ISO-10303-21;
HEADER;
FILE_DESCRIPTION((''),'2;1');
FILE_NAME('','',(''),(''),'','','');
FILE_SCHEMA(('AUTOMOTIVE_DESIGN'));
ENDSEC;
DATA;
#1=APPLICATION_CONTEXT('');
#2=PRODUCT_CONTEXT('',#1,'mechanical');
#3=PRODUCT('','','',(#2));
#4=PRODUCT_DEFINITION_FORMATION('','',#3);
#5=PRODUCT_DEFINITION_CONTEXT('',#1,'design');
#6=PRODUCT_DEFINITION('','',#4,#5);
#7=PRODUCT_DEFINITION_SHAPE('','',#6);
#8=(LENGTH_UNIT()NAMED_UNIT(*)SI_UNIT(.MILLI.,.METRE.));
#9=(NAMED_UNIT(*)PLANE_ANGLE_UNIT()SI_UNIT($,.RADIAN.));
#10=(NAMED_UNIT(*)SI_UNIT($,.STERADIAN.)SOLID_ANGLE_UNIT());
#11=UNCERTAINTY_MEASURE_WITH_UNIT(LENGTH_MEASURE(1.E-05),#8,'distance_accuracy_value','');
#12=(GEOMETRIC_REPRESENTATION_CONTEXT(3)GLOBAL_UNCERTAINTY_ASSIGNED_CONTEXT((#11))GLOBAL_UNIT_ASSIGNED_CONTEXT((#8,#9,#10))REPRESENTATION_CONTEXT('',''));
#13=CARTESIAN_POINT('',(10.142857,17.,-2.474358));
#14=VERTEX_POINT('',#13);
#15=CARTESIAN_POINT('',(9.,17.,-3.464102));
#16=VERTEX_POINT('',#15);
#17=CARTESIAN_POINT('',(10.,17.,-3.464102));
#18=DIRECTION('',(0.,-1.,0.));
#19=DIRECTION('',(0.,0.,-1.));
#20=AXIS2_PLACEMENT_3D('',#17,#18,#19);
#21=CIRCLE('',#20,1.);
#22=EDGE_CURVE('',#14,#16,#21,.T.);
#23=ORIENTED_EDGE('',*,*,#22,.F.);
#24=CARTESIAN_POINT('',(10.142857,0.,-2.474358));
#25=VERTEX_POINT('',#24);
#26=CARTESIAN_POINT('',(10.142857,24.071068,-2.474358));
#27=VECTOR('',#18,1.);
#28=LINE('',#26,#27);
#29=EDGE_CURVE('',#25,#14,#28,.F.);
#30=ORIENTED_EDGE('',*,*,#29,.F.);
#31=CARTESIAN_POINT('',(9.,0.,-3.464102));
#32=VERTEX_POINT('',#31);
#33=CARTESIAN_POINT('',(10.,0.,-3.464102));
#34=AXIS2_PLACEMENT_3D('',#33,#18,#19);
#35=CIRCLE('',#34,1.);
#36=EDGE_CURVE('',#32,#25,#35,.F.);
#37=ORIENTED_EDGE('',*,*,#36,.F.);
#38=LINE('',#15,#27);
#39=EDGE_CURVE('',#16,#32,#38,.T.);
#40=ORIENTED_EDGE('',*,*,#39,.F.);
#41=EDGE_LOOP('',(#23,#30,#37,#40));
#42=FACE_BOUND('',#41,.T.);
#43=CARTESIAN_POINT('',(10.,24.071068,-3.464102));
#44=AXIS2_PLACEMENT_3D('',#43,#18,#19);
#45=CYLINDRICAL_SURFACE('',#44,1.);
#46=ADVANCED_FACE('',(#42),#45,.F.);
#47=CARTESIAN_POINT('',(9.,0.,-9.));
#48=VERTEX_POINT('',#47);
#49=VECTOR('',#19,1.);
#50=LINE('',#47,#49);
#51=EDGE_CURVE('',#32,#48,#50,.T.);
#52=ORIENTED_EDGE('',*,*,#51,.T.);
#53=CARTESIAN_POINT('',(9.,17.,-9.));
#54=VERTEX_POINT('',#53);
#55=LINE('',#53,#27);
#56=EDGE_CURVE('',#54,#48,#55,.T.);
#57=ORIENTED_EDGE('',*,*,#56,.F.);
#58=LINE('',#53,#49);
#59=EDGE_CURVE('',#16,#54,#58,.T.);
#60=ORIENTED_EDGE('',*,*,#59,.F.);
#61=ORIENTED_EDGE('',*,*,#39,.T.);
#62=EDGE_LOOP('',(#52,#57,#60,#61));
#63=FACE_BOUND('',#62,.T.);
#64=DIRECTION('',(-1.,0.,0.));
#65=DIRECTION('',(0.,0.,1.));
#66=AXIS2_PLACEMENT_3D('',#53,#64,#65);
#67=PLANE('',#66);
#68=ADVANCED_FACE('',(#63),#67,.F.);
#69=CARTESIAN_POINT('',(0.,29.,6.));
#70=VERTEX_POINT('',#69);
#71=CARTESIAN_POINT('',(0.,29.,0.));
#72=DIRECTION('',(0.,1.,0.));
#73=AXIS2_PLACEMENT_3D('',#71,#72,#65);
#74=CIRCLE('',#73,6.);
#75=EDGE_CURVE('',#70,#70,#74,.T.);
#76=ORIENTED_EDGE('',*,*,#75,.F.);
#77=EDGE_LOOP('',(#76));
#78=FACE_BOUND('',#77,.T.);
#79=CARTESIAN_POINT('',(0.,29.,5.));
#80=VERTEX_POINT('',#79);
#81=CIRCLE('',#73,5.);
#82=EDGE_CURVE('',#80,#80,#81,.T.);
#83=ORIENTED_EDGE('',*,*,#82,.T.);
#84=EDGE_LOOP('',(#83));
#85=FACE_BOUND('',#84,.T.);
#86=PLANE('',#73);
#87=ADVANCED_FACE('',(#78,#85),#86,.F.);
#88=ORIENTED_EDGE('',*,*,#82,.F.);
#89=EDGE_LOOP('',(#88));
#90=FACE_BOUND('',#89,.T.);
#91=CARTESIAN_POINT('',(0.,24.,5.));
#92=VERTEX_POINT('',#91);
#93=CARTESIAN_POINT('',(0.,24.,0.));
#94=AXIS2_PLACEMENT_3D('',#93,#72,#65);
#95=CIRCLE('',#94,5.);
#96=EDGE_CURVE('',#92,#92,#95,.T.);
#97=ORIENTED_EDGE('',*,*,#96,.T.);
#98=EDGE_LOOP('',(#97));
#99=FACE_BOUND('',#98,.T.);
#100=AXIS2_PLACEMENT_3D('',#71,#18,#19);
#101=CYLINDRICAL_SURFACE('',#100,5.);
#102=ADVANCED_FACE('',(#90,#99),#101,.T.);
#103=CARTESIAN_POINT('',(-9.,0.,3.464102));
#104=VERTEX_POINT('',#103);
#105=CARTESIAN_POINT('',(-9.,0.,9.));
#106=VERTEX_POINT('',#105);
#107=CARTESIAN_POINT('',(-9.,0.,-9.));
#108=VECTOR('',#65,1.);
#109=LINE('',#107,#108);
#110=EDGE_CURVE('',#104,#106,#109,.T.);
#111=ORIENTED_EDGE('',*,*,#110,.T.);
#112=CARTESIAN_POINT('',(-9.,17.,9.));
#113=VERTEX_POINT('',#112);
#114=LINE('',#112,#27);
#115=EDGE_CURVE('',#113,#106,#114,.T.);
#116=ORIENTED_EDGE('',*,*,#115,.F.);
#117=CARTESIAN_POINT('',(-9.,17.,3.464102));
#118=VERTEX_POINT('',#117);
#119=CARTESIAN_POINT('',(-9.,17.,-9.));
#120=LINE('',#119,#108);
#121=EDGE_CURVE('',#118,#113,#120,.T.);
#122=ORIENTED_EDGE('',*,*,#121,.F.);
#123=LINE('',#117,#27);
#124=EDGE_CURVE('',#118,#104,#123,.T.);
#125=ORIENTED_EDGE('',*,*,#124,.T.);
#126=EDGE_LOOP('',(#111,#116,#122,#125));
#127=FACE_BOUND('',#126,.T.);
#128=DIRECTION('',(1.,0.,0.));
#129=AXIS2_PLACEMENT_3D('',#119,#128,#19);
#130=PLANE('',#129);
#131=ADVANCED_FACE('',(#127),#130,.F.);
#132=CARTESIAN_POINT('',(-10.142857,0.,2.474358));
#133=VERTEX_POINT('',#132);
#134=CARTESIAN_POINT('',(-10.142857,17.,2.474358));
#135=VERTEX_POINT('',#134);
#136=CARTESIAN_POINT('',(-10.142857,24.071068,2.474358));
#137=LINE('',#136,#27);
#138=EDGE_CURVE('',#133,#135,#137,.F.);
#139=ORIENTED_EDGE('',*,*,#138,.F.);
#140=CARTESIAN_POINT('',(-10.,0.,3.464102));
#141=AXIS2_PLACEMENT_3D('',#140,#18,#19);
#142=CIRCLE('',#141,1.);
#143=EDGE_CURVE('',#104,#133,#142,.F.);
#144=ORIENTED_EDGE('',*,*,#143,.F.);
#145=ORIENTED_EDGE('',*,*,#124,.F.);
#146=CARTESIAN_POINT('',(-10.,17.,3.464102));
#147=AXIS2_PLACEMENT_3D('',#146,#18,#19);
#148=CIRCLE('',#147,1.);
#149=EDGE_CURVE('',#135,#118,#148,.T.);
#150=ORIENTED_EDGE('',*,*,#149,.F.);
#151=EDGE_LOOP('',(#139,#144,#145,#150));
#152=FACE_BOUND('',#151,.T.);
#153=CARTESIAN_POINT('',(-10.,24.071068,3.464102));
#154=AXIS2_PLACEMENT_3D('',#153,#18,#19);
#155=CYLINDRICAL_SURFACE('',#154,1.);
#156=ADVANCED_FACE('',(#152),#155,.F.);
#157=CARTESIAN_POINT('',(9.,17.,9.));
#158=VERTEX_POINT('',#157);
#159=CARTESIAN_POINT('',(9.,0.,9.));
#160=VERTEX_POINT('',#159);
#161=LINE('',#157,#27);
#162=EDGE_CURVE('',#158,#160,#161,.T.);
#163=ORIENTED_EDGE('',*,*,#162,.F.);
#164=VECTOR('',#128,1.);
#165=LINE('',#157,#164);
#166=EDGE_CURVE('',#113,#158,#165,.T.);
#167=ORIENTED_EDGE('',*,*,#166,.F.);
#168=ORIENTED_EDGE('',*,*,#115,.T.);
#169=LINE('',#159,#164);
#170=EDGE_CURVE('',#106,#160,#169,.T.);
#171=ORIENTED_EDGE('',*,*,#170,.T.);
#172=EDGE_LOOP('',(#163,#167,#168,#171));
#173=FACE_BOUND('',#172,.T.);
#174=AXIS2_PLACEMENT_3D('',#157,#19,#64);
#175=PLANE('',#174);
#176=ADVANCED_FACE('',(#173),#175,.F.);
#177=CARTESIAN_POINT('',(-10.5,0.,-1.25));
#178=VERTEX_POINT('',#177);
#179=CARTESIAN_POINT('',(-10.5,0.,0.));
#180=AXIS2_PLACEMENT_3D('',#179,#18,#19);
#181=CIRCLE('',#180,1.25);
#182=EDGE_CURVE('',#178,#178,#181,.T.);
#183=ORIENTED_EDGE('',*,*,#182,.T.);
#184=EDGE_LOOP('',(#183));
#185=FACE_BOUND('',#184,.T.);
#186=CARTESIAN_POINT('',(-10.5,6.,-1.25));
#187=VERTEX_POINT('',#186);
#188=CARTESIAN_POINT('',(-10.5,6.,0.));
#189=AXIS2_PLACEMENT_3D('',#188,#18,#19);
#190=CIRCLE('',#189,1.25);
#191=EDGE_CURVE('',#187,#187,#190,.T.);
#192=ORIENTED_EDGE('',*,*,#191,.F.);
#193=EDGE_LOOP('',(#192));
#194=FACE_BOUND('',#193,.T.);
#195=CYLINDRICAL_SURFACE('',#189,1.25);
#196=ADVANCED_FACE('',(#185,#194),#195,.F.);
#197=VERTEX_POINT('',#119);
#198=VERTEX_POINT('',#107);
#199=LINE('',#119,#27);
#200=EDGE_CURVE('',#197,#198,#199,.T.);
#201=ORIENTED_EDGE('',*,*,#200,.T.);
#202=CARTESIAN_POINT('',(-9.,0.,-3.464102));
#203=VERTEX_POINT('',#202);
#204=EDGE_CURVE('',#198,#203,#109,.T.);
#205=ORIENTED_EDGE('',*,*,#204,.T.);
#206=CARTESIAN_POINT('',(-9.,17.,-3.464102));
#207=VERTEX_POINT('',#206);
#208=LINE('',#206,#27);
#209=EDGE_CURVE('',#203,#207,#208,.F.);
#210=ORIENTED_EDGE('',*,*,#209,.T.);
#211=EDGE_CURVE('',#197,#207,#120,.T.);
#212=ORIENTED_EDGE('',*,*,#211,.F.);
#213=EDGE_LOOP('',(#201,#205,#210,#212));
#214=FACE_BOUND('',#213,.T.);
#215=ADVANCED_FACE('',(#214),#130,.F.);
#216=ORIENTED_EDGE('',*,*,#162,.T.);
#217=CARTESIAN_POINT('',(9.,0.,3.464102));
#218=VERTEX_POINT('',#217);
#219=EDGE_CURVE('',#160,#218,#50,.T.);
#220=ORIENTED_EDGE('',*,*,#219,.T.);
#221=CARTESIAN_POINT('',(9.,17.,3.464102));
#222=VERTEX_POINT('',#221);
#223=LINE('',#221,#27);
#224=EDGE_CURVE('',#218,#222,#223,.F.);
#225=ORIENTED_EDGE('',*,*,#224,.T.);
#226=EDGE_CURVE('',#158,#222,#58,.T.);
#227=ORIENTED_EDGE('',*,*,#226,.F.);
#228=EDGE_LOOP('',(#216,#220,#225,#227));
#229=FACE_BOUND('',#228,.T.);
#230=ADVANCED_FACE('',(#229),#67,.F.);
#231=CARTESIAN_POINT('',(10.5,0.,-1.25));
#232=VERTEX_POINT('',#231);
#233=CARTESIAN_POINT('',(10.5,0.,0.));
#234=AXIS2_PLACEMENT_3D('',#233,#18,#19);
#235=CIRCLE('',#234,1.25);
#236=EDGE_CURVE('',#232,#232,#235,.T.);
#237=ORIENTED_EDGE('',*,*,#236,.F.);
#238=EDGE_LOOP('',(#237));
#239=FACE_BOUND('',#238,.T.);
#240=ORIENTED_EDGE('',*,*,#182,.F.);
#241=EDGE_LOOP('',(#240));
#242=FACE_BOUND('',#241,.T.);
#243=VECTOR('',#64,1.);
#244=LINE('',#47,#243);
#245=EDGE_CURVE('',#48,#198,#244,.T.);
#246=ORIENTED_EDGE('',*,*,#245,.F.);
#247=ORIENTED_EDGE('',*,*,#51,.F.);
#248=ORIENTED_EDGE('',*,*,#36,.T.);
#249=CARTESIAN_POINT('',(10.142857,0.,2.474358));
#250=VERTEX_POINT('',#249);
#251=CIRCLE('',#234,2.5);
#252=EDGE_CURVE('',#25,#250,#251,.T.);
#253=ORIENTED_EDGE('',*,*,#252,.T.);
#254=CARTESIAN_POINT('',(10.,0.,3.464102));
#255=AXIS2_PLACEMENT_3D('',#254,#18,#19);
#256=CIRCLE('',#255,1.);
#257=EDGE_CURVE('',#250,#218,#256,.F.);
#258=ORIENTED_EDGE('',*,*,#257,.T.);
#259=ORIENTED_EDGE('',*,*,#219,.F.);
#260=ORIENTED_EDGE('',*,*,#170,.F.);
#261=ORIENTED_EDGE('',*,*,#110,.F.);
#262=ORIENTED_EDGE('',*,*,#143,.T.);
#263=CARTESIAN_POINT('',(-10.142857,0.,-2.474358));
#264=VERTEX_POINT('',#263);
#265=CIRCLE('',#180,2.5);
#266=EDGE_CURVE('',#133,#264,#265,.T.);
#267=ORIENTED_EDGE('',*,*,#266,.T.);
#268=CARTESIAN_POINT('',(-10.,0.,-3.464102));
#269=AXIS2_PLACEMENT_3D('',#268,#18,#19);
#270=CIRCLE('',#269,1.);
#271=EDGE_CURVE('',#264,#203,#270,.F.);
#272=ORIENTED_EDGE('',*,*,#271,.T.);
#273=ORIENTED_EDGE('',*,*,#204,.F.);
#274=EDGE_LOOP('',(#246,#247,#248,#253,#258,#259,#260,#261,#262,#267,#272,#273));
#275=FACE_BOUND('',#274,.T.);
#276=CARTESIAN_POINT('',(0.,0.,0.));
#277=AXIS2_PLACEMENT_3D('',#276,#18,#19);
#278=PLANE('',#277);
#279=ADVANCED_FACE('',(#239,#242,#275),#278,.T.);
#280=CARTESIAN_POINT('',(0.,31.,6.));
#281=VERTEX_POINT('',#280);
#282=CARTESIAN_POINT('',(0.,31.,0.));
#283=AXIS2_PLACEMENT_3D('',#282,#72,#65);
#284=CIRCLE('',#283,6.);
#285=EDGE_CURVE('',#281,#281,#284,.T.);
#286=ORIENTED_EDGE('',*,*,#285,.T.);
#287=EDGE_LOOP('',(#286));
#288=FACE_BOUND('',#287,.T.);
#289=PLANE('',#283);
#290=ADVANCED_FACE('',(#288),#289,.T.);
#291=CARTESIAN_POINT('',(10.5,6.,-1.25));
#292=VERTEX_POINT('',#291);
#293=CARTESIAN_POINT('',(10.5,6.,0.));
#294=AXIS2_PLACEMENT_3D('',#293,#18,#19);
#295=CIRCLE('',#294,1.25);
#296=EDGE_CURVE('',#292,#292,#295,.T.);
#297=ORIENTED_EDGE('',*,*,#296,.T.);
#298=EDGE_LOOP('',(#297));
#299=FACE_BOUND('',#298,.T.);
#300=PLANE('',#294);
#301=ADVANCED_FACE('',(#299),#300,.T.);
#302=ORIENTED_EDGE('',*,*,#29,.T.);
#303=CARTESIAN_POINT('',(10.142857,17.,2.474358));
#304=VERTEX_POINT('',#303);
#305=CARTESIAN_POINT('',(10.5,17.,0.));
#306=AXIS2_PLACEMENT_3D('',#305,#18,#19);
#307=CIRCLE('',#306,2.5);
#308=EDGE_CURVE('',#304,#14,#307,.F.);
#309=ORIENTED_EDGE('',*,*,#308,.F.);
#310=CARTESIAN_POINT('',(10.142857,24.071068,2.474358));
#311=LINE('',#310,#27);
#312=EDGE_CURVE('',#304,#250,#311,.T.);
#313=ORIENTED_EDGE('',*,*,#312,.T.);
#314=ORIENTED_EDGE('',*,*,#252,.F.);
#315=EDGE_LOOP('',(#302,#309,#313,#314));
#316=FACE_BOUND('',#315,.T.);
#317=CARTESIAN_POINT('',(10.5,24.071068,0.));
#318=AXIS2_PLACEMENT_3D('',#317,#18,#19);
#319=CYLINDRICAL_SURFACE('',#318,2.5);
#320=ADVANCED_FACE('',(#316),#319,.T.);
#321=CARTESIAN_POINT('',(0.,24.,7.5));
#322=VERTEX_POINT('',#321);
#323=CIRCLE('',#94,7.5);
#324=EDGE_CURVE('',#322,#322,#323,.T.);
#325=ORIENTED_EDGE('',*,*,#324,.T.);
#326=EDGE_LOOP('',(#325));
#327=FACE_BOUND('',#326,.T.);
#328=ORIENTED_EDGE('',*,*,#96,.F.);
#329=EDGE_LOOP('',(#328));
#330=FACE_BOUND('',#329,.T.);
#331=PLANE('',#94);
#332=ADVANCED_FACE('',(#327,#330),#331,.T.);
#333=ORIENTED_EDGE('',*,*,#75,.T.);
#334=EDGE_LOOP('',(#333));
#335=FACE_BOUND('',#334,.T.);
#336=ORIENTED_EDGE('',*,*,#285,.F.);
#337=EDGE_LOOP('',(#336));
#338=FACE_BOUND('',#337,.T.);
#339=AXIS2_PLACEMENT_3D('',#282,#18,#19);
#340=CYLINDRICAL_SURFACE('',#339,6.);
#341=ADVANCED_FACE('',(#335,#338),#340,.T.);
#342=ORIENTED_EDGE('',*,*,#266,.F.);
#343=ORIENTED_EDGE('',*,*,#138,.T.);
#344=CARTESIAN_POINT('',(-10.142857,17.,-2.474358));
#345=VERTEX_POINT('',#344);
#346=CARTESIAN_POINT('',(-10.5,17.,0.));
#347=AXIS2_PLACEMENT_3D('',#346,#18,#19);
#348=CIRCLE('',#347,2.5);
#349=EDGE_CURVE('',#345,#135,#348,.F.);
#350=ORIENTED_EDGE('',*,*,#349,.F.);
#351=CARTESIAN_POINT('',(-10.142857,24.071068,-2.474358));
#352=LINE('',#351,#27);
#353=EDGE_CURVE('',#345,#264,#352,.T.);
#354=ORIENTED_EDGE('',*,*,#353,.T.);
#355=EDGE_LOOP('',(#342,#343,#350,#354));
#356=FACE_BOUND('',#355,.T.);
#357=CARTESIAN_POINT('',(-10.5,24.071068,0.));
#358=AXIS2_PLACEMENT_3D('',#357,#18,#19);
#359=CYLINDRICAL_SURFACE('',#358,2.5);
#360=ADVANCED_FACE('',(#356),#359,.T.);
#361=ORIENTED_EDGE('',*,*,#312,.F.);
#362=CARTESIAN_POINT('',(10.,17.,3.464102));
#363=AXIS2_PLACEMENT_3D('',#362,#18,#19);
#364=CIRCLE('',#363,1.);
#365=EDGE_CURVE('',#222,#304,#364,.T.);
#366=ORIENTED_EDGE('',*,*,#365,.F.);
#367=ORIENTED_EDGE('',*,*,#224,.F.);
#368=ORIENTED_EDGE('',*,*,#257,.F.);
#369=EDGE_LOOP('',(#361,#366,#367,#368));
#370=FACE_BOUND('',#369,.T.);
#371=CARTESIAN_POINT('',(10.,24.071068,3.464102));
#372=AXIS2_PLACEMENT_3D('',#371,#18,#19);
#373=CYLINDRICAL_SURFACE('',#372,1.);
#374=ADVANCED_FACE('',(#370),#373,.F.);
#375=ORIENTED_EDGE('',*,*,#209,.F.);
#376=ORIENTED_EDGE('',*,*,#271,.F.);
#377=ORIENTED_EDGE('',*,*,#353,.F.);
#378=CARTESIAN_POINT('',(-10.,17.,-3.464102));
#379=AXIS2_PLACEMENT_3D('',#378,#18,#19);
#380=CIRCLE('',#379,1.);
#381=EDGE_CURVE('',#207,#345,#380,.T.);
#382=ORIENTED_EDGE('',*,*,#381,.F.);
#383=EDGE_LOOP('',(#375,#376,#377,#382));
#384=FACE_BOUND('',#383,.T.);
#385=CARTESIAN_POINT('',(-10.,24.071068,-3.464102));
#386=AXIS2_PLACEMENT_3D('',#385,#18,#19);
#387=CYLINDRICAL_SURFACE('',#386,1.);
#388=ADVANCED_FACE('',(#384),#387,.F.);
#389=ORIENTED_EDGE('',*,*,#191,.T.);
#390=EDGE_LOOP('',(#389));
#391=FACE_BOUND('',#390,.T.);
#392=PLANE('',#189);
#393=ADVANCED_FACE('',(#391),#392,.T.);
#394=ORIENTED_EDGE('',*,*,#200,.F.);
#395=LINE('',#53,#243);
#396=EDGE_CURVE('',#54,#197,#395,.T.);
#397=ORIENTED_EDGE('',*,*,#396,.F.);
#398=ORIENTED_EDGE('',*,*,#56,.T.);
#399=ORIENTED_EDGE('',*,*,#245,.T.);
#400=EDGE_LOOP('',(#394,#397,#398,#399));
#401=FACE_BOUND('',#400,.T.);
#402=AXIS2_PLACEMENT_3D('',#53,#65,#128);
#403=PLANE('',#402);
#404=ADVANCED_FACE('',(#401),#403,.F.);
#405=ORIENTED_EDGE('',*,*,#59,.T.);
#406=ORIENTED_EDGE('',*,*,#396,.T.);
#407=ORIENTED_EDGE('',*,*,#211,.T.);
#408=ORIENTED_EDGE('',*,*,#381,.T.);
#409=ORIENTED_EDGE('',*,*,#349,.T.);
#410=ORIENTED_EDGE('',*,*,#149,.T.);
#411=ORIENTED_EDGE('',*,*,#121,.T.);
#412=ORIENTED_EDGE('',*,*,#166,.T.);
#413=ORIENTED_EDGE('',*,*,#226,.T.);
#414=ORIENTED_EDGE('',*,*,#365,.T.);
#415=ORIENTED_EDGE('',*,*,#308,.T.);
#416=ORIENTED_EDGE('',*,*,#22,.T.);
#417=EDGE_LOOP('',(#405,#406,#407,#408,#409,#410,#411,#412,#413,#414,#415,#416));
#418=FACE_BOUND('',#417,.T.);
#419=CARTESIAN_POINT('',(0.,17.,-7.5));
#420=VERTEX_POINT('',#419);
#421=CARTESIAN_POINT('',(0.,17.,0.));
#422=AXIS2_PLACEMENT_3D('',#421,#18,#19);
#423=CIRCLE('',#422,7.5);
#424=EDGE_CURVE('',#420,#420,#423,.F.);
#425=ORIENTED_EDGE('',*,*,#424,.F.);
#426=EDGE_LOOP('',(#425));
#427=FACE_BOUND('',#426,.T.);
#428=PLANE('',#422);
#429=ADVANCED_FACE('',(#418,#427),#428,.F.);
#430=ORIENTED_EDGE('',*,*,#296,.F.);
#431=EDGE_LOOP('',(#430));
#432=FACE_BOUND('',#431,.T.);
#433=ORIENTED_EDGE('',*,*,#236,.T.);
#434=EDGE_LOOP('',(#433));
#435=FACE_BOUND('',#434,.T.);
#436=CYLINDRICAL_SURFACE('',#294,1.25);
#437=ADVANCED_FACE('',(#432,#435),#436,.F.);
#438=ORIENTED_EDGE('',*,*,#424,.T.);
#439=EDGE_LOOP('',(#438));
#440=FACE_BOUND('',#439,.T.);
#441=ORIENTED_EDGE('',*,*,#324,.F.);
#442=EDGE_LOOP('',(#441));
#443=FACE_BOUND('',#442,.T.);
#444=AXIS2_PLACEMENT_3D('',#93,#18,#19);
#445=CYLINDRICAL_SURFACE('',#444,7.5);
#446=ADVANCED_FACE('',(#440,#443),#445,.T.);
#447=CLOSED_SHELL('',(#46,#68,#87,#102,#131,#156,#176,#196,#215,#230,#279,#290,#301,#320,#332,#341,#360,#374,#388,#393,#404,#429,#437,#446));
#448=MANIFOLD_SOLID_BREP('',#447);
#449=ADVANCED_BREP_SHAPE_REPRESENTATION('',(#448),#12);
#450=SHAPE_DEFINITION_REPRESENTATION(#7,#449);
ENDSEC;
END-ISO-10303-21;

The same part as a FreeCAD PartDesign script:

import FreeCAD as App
import Part
import Sketcher

V = App.Vector
Q = App.Units.Quantity


def edges_at(feature, points):
    """Names of the edges that pass closest to the given points."""
    edges = feature.Shape.Edges
    near = lambda p: min(range(len(edges)), key=lambda i: edges[i].distToShape(Part.Vertex(*p))[0])
    return sorted({f"Edge{near(p) + 1}" for p in points})


def add_polygon(sketch, points):
    """Adds a closed chain of lines whose ends are joined by coincident constraints."""
    first, n = sketch.GeometryCount, len(points)
    for a, b in zip(points, points[1:] + points[:1]):
        sketch.addGeometry(Part.LineSegment(App.Vector(*a, 0), App.Vector(*b, 0)), False)
    for i in range(n):
        sketch.addConstraint(Sketcher.Constraint("Coincident", first + i, 2, first + (i + 1) % n, 1))

doc = App.newDocument("Part")
body = doc.addObject("PartDesign::Body", "Body")

# Sketch on XZ plane
sketch1 = doc.addObject("Sketcher::SketchObject", "Sketch")
body.addObject(sketch1)
sketch1.AttachmentSupport = (doc.XZ_Plane, [""])
sketch1.MapMode = "FlatFace"
add_polygon(sketch1, [(-9, -9), (-9, 9), (9, 9), (9, -9)])  # lines 0-3
sketch1.addConstraint([
    Sketcher.Constraint("Vertical", 0),
    Sketcher.Constraint("Horizontal", 1),
    Sketcher.Constraint("Vertical", 2),
    Sketcher.Constraint("Horizontal", 3),
    Sketcher.Constraint("Symmetric", 0, 2, 2, 2, -1, 1),
    Sketcher.Constraint("Equal", 3, 0),
    Sketcher.Constraint("DistanceX", 1, 1, 1, 2, Q("18 mm")),
])
pad1 = doc.addObject("PartDesign::Pad", "Pad")
body.addObject(pad1)
pad1.Profile = sketch1
pad1.Length = 17
pad1.Reversed = True

# Sketch on XZ plane
sketch2 = doc.addObject("Sketcher::SketchObject", "Sketch001")
body.addObject(sketch2)
sketch2.AttachmentSupport = (doc.XZ_Plane, [""])
sketch2.MapMode = "FlatFace"
sketch2.AttachmentOffset = App.Placement(V(0, 0, -17), App.Rotation())
sketch2.addGeometry(Part.Circle(V(0, 0, 0), V(0, 0, 1), 8), False)
sketch2.addConstraint([
    Sketcher.Constraint("Coincident", 0, 3, -1, 1),
    Sketcher.Constraint("Diameter", 0, Q("15 mm")),
])
pad2 = doc.addObject("PartDesign::Pad", "Pad001")
body.addObject(pad2)
pad2.Profile = sketch2
pad2.Length = 7
pad2.Reversed = True

# Sketch on XZ plane
sketch3 = doc.addObject("Sketcher::SketchObject", "Sketch002")
body.addObject(sketch3)
sketch3.AttachmentSupport = (doc.XZ_Plane, [""])
sketch3.MapMode = "FlatFace"
sketch3.AttachmentOffset = App.Placement(V(0, 0, -24), App.Rotation())
sketch3.addGeometry(Part.Circle(V(0, 0, 0), V(0, 0, 1), 5), False)
sketch3.addConstraint([
    Sketcher.Constraint("Coincident", 0, 3, -1, 1),
    Sketcher.Constraint("Diameter", 0, Q("10 mm")),
])
pad3 = doc.addObject("PartDesign::Pad", "Pad002")
body.addObject(pad3)
pad3.Profile = sketch3
pad3.Length = 5
pad3.Reversed = True

# Sketch on XZ plane
sketch4 = doc.addObject("Sketcher::SketchObject", "Sketch003")
body.addObject(sketch4)
sketch4.AttachmentSupport = (doc.XZ_Plane, [""])
sketch4.MapMode = "FlatFace"
sketch4.AttachmentOffset = App.Placement(V(0, 0, -29), App.Rotation())
sketch4.addGeometry(Part.Circle(V(0, 0, 0), V(0, 0, 1), 6), False)
sketch4.addConstraint([
    Sketcher.Constraint("Coincident", 0, 3, -1, 1),
    Sketcher.Constraint("Diameter", 0, Q("12 mm")),
])
pad4 = doc.addObject("PartDesign::Pad", "Pad003")
body.addObject(pad4)
pad4.Profile = sketch4
pad4.Length = 2
pad4.Reversed = True

# Sketch on XZ plane
sketch5 = doc.addObject("Sketcher::SketchObject", "Sketch004")
body.addObject(sketch5)
sketch5.AttachmentSupport = (doc.XZ_Plane, [""])
sketch5.MapMode = "FlatFace"
sketch5.addGeometry([
    Part.Circle(V(-10.5, 0, 0), V(0, 0, 1), 2.5),
    Part.Circle(V(10.5, 0, 0), V(0, 0, 1), 2.5),
], False)
sketch5.addConstraint([
    Sketcher.Constraint("Equal", 0, 1),
    Sketcher.Constraint("Symmetric", 0, 3, 1, 3, -1, 1),
    Sketcher.Constraint("PointOnObject", 0, 3, -1),
    Sketcher.Constraint("Diameter", 0, Q("5 mm")),
    Sketcher.Constraint("DistanceX", 0, 3, 1, 3, Q("21 mm")),
])
pad5 = doc.addObject("PartDesign::Pad", "Pad004")
body.addObject(pad5)
pad5.Profile = sketch5
pad5.Length = 17
pad5.Reversed = True
doc.recompute()

fillet = doc.addObject("PartDesign::Fillet", "Fillet")
body.addObject(fillet)
fillet.Base = (pad5, edges_at(pad5, [
    (-9, 8.5, 2),
    (-9, 8.5, -2),
    (9, 8.5, -2),
    (9, 8.5, 2),
]))
fillet.Radius = 1

# Sketch on XZ plane
sketch6 = doc.addObject("Sketcher::SketchObject", "Sketch005")
body.addObject(sketch6)
sketch6.AttachmentSupport = (doc.XZ_Plane, [""])
sketch6.MapMode = "FlatFace"
sketch6.addGeometry([
    Part.Circle(V(-10.5, 0, 0), V(0, 0, 1), 1.2),
    Part.Circle(V(10.5, 0, 0), V(0, 0, 1), 1.2),
], False)
sketch6.addConstraint([
    Sketcher.Constraint("Equal", 0, 1),
    Sketcher.Constraint("Symmetric", 0, 3, 1, 3, -1, 1),
    Sketcher.Constraint("PointOnObject", 0, 3, -1),
    Sketcher.Constraint("Diameter", 0, Q("2.5 mm")),
    Sketcher.Constraint("DistanceX", 0, 3, 1, 3, Q("21 mm")),
])
pocket1 = doc.addObject("PartDesign::Pocket", "Pocket")
body.addObject(pocket1)
pocket1.Profile = sketch6
pocket1.Length = 6

doc.recompute()
